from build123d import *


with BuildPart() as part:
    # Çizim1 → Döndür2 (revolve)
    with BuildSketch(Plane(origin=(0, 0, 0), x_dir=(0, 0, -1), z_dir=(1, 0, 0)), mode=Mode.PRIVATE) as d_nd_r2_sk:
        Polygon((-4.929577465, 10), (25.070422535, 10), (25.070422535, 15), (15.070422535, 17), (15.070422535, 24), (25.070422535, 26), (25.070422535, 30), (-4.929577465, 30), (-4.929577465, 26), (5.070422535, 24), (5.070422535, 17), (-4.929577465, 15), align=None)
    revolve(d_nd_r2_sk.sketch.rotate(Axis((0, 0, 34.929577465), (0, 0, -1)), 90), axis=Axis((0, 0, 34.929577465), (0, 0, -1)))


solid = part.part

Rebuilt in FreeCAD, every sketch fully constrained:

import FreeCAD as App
import Part
import Sketcher

V = App.Vector


def add_polygon(sketch, points):
    """Adds a closed chain of lines whose ends are joined by coincident constraints."""
    first, n = sketch.GeometryCount, len(points)
    for a, b in zip(points, points[1:] + points[:1]):
        sketch.addGeometry(Part.LineSegment(App.Vector(*a, 0), App.Vector(*b, 0)), False)
    for i in range(n):
        sketch.addConstraint(Sketcher.Constraint("Coincident", first + i, 2, first + (i + 1) % n, 1))

doc = App.newDocument("Part")
body = doc.addObject("PartDesign::Body", "Body")

sketch1 = body.newObject("Sketcher::SketchObject", "Sketch")
sketch1.AttachmentSupport = (doc.getObject("YZ_Plane"), [""])
sketch1.MapMode = "FlatFace"
add_polygon(sketch1, [(10, 4.929577), (10, -25.070423), (15, -25.070423), (17, -15.070423), (24, -15.070423), (26, -25.070423), (30, -25.070423), (30, 4.929577), (26, 4.929577), (24, -5.070423), (17, -5.070423), (15, 4.929577)])
sketch1.addConstraint([
    Sketcher.Constraint("Vertical", 0),
    Sketcher.Constraint("Horizontal", 1),
    Sketcher.Constraint("Horizontal", 3),
    Sketcher.Constraint("Horizontal", 5),
    Sketcher.Constraint("Vertical", 6),
    Sketcher.Constraint("Horizontal", 7),
    Sketcher.Constraint("Horizontal", 9),
    Sketcher.Constraint("Horizontal", 11),
    Sketcher.Constraint("Parallel", 2, 8),
    Sketcher.Constraint("Parallel", 4, 10),
    Sketcher.Constraint("Horizontal", 1, 2, 4, 2),
    Sketcher.Constraint("Horizontal", 7, 2, 10, 2),
    Sketcher.Constraint("Vertical", 4, 2, 7, 2),
    Sketcher.Constraint("Vertical", 3, 2, 8, 2),
    Sketcher.Constraint("Vertical", 2, 2, 9, 2),
    Sketcher.Constraint("Vertical", 1, 2, 10, 2),
    Sketcher.Constraint("DistanceX", 1, 1, 1, 2, 5.0),
    Sketcher.Constraint("DistanceX", 3, 1, 3, 2, 7.0),
    Sketcher.Constraint("DistanceX", 5, 1, 5, 2, 4.0),
    Sketcher.Constraint("DistanceY", 0, 2, 0, 1, 30.0),
    Sketcher.Constraint("DistanceX", -1, 1, 0, 2, 10.0),
    Sketcher.Constraint("DistanceX", -1, 1, 2, 2, 17.0),
    Sketcher.Constraint("DistanceY", 1, 2, 2, 2, 10.0),
    Sketcher.Constraint("DistanceY", 0, 2, -1, 1, 25.070423),
])
revolution = body.newObject("PartDesign::Revolution", "Revolution")
revolution.Profile = sketch1
revolution.ReferenceAxis = (sketch1, ["V_Axis"])
revolution.Angle = 360

doc.recompute()
